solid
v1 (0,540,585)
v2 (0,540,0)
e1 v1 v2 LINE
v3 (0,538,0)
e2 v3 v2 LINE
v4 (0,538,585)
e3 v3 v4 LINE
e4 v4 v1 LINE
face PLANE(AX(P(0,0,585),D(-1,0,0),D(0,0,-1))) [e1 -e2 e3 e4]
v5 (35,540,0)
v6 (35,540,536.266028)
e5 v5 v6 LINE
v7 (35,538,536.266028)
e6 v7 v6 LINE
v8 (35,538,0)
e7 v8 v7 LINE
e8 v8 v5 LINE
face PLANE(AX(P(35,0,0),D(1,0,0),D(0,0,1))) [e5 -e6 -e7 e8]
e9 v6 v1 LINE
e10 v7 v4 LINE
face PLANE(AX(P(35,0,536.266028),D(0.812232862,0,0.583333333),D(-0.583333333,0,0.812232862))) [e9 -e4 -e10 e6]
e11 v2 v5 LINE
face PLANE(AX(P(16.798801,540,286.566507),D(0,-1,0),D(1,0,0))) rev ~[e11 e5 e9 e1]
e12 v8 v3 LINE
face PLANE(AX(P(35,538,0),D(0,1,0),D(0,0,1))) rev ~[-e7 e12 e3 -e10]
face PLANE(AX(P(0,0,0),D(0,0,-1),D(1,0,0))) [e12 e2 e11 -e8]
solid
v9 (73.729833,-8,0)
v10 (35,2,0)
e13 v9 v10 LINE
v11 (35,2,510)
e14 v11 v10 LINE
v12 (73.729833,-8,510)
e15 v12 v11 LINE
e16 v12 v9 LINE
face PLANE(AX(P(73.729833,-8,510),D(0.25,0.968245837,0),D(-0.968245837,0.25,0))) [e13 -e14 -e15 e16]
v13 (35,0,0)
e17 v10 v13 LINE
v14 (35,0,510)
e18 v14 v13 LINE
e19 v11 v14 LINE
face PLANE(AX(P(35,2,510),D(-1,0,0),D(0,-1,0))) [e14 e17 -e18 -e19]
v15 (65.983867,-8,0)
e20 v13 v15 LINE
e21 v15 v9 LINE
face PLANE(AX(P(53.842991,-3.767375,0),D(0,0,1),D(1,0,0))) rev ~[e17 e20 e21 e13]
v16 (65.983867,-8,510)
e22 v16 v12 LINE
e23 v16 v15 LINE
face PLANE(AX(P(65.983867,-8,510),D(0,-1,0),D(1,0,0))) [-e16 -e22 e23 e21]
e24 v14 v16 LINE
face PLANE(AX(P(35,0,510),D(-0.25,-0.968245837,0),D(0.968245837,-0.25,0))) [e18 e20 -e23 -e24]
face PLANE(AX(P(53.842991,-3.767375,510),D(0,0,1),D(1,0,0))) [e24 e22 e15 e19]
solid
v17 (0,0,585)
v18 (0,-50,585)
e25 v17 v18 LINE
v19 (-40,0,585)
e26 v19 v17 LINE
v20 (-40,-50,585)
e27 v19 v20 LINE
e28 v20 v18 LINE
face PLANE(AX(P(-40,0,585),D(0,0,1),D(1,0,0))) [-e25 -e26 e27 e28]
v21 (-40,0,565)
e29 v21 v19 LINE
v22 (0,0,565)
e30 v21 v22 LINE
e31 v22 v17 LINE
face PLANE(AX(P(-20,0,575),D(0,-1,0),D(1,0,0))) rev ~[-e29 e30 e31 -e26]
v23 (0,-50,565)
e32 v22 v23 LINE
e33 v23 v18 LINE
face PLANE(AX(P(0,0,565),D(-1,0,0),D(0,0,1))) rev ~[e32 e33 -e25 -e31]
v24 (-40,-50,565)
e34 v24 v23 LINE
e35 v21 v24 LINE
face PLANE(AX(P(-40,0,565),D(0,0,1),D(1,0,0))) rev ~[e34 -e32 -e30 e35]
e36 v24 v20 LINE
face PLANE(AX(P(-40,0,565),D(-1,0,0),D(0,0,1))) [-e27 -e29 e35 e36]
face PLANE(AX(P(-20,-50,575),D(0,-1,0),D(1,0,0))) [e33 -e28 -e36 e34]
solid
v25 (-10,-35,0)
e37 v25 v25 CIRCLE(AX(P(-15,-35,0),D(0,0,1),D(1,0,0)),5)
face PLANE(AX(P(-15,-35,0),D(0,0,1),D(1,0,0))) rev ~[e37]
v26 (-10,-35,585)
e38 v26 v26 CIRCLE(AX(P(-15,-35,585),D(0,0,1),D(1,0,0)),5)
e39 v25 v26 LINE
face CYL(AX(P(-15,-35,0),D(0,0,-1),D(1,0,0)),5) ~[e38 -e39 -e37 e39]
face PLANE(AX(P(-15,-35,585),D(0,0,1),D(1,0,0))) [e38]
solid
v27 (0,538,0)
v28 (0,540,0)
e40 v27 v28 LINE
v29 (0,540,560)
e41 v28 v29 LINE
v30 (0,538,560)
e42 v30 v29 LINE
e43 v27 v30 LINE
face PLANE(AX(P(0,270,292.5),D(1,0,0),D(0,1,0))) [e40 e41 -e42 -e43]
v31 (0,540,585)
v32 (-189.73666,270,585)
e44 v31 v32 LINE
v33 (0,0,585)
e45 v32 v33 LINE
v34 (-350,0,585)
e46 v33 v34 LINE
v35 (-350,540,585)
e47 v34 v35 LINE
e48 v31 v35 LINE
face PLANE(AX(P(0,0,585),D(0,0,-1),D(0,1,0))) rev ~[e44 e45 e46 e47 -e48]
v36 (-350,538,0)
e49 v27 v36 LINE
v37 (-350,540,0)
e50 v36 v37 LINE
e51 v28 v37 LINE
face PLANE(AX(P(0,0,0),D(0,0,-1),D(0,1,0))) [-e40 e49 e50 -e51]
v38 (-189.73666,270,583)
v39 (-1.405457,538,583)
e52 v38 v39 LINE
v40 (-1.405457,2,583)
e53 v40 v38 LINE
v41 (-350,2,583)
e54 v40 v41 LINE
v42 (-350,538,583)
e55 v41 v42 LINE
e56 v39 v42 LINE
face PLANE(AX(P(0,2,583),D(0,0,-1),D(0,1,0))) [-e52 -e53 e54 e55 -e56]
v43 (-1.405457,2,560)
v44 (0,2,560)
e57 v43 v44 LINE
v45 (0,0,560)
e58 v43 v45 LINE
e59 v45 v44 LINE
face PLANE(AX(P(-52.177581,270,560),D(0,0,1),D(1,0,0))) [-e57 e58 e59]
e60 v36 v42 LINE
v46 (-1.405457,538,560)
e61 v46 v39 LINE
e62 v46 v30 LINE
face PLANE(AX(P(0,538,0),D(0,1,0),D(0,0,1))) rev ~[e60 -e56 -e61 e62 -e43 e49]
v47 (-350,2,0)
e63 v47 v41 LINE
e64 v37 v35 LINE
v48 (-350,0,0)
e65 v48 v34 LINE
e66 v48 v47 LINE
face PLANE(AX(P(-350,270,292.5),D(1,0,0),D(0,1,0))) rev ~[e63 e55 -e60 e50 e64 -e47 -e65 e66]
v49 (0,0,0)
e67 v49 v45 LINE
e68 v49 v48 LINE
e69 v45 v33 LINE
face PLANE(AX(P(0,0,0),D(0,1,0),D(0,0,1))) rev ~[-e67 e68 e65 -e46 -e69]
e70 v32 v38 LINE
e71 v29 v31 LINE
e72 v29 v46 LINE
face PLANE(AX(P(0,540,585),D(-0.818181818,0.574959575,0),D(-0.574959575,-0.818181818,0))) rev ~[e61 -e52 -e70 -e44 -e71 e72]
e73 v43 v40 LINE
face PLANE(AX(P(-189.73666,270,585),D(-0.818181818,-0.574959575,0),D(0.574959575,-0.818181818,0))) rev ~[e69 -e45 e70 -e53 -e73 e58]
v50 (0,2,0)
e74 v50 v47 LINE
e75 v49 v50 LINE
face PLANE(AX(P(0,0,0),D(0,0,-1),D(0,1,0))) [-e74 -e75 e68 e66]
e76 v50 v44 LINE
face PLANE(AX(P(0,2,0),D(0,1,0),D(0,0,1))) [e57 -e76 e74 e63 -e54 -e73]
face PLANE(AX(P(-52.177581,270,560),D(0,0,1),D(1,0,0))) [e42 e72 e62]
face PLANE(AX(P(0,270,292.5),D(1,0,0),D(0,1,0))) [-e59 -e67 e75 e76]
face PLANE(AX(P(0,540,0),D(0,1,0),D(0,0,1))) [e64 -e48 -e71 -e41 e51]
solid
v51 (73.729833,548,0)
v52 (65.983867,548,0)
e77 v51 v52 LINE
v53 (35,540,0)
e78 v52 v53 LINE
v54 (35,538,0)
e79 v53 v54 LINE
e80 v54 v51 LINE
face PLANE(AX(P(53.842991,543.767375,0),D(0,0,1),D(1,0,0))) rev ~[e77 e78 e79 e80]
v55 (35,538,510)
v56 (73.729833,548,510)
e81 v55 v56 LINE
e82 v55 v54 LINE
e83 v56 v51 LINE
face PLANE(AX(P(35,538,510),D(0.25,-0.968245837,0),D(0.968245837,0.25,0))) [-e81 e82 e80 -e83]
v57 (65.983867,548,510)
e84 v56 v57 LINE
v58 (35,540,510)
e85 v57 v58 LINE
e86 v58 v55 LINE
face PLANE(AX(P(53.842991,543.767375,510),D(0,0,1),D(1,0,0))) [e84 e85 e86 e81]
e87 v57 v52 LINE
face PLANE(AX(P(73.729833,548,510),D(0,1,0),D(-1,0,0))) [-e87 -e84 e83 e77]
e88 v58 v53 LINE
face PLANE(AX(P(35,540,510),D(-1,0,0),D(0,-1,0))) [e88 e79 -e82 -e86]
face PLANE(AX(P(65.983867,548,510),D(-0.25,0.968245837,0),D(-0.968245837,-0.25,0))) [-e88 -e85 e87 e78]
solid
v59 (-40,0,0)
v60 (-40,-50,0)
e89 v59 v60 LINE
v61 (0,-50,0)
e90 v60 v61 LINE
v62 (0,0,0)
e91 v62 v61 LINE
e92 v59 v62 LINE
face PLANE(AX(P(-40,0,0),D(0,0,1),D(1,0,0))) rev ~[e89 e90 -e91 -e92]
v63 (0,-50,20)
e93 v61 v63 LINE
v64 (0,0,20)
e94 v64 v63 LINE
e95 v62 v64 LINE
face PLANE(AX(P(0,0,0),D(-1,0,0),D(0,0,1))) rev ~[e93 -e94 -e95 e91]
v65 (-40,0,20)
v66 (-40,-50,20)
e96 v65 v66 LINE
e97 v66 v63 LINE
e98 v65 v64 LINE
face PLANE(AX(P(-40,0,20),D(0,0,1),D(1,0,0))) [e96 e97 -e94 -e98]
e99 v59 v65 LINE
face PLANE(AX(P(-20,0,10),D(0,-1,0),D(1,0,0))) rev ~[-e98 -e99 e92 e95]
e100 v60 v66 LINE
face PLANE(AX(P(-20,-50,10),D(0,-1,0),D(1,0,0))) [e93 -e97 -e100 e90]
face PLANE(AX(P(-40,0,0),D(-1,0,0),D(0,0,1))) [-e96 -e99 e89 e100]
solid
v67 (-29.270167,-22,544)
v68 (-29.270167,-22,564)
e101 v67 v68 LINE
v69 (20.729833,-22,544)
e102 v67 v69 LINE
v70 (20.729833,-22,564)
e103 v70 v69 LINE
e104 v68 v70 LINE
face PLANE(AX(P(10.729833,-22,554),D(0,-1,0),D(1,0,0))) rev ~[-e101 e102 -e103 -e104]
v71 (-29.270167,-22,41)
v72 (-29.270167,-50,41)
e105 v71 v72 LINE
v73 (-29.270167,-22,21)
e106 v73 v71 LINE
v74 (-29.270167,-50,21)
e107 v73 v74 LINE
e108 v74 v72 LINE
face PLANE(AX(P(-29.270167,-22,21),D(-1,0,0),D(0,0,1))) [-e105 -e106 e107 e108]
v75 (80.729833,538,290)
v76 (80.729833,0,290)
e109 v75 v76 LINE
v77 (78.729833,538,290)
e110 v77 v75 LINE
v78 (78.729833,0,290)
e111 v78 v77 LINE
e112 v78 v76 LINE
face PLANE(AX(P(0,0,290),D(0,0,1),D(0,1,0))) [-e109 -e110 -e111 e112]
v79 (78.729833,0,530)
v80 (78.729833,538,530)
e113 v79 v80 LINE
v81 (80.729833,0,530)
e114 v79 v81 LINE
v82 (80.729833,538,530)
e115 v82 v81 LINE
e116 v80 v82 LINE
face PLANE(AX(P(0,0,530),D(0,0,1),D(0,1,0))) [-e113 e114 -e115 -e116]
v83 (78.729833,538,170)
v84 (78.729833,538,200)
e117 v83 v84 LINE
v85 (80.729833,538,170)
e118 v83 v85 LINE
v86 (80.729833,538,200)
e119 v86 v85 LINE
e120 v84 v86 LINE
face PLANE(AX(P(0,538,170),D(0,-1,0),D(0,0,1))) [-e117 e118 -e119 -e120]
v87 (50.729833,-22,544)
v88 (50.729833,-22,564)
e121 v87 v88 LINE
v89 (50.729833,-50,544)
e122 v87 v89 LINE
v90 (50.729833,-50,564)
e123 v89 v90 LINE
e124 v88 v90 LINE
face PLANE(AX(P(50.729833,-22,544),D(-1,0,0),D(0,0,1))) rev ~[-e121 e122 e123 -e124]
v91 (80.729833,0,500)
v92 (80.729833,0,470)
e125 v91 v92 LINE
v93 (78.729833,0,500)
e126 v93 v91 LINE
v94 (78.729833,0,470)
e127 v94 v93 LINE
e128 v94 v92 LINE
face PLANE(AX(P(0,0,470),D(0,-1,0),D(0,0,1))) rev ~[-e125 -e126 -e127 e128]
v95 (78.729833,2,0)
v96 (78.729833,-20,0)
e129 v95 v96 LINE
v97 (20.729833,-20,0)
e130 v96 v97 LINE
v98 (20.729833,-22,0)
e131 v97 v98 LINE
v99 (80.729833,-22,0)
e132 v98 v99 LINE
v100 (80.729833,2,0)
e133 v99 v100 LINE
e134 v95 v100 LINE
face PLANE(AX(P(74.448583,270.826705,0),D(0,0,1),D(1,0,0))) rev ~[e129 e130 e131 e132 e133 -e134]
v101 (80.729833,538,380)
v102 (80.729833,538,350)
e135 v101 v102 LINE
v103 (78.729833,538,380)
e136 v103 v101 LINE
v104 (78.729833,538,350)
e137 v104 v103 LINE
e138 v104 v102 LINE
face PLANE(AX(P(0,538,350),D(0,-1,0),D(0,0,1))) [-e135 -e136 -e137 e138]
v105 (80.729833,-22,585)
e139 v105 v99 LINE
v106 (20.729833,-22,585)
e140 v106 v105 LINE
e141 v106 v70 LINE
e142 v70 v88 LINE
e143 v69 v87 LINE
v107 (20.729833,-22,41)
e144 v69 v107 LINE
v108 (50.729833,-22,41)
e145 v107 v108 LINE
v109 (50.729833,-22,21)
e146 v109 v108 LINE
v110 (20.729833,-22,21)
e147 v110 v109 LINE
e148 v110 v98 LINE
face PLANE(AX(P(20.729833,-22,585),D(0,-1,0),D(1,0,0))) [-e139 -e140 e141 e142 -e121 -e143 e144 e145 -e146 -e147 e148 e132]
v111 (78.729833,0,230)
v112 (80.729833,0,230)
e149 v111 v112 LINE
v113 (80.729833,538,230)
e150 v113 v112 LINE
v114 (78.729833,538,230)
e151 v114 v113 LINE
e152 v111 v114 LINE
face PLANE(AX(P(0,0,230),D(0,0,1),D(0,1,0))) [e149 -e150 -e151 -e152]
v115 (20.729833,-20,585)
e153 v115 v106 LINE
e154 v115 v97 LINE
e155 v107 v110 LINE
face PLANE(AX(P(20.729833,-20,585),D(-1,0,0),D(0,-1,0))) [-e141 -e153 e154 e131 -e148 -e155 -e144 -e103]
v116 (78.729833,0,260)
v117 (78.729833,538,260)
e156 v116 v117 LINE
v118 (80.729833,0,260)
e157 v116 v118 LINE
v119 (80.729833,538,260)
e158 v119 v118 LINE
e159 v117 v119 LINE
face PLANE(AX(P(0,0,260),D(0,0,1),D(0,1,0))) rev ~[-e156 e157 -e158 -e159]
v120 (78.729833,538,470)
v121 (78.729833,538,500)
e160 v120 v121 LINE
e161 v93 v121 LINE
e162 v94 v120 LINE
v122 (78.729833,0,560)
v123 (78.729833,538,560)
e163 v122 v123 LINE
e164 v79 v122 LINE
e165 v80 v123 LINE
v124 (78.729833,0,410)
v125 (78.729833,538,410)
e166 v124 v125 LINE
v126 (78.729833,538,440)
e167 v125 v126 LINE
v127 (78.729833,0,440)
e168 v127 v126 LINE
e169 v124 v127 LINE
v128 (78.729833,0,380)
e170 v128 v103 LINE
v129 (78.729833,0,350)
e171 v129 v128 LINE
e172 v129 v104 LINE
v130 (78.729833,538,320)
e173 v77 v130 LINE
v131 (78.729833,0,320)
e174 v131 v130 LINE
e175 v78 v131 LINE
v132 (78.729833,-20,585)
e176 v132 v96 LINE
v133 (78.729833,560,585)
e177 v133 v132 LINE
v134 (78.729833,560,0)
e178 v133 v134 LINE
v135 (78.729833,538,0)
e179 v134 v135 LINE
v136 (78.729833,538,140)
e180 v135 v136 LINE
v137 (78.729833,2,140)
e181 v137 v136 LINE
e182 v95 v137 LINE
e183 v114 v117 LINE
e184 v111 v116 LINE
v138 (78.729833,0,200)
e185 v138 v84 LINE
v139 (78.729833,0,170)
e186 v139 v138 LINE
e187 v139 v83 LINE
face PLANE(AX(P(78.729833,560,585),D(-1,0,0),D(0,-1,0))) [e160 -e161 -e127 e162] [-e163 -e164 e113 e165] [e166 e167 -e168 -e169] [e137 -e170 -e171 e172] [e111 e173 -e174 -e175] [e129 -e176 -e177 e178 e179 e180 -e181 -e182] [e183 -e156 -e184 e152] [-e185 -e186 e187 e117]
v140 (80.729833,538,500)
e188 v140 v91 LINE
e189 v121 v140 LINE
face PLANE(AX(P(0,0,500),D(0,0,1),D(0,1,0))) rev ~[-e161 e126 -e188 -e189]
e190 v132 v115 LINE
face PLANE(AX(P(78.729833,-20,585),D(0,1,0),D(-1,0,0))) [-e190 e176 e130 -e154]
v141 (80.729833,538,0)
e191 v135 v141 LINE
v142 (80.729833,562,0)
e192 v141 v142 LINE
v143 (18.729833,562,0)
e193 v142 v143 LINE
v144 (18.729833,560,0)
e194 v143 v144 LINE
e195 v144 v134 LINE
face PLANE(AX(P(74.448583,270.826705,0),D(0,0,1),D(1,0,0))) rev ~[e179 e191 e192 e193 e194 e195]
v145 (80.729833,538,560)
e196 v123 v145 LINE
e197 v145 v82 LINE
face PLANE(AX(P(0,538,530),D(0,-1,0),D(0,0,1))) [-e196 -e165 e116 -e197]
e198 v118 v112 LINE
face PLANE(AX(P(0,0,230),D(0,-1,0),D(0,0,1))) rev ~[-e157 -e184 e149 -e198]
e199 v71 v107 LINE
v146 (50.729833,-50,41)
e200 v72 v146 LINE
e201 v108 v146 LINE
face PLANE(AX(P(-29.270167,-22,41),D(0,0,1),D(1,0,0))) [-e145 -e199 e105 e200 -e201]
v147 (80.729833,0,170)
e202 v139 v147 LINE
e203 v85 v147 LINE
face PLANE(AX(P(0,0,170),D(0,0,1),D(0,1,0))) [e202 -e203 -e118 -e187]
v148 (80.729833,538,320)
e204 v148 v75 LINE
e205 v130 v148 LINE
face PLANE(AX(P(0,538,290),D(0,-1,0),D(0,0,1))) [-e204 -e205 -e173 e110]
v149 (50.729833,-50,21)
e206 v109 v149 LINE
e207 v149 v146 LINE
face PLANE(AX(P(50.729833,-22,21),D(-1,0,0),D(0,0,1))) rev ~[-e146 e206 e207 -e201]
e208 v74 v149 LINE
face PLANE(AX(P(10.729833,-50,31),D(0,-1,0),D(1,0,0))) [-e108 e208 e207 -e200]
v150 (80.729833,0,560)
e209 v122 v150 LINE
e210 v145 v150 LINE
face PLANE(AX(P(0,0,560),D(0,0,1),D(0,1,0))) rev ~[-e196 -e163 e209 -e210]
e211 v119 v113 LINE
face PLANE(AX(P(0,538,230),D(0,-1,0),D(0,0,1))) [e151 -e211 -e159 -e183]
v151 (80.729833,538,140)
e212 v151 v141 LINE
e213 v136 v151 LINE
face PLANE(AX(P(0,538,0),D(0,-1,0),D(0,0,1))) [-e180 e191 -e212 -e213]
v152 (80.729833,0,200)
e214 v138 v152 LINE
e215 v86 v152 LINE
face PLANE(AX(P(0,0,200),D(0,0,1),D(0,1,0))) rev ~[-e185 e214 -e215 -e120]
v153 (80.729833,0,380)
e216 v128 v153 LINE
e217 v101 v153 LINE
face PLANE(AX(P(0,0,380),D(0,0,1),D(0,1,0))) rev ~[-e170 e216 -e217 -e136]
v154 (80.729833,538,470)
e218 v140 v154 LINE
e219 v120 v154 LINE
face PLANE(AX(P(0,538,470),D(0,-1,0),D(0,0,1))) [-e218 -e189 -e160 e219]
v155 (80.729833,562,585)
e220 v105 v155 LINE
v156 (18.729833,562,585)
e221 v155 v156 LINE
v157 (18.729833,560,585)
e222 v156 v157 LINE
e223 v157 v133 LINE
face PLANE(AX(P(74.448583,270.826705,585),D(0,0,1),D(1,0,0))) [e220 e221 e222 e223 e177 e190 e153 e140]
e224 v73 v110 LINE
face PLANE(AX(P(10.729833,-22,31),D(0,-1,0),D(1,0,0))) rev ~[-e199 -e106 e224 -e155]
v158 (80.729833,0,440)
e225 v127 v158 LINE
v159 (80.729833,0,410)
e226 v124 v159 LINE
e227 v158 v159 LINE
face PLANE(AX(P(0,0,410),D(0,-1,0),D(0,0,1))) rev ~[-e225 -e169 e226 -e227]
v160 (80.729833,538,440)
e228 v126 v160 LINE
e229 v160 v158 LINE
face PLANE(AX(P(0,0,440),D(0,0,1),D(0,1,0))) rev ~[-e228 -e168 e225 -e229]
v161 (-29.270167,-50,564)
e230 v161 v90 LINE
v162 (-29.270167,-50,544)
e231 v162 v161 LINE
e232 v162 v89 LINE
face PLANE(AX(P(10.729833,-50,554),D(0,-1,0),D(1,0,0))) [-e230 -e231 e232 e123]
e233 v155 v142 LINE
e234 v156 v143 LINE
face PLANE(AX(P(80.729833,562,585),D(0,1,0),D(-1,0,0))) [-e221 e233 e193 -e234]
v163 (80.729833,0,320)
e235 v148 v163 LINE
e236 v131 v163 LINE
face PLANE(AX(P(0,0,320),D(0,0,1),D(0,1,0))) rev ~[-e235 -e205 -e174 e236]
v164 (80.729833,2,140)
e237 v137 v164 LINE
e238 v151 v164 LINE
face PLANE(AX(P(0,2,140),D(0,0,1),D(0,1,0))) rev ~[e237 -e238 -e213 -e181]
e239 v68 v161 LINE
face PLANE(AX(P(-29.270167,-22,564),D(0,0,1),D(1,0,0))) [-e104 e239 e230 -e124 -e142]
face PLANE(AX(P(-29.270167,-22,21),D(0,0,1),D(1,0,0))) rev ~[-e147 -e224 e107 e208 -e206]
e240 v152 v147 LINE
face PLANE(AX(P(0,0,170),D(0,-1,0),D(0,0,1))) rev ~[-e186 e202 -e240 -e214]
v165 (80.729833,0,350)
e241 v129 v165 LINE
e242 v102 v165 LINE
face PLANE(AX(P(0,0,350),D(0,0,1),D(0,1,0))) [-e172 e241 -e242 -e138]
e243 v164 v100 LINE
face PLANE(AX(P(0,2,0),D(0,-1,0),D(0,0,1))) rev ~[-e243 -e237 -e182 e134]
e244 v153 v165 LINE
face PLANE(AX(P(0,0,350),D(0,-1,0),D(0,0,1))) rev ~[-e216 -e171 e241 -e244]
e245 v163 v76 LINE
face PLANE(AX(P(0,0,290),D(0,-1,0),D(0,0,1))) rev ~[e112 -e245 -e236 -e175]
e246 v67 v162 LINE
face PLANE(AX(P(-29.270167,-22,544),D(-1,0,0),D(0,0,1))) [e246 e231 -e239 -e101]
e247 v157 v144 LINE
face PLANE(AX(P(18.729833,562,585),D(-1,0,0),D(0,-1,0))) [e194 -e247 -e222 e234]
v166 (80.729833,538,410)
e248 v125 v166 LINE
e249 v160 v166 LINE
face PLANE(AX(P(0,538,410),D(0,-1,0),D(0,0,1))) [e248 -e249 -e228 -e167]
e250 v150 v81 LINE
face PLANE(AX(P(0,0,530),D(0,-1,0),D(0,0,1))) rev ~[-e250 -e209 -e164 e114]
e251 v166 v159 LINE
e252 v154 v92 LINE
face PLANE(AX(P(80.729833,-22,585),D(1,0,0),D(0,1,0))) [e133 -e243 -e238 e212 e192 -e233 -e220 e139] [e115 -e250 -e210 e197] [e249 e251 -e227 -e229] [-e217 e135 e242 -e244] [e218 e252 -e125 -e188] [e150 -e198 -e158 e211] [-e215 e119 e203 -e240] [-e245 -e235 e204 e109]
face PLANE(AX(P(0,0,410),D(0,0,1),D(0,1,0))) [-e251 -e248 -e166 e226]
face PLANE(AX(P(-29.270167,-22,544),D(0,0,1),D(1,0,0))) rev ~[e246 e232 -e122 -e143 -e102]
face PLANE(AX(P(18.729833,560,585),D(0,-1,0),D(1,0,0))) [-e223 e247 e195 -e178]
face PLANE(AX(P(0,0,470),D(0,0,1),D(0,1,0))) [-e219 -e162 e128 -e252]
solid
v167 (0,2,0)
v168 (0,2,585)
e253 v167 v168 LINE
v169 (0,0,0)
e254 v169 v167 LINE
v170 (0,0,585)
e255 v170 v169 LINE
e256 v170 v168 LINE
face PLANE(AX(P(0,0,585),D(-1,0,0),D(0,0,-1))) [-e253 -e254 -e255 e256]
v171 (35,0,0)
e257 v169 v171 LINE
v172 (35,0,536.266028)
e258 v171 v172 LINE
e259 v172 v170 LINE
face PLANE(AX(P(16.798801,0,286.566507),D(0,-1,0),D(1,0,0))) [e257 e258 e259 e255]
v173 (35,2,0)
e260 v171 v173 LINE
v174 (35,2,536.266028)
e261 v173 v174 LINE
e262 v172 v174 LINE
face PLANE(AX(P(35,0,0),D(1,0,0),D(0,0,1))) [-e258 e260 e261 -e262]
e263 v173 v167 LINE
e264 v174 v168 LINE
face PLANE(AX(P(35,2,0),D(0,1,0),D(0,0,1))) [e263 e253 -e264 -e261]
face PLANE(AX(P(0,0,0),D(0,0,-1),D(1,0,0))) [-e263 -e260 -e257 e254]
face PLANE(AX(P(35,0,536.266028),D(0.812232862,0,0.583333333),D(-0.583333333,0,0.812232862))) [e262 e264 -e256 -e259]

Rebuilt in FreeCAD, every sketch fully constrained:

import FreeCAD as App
import Part
import Sketcher

doc = App.newDocument("Part")
body = doc.addObject("PartDesign::Body", "Body")

# Sketch on YZ plane
sketch1 = body.newObject("Sketcher::SketchObject", "Sketch")
sketch1.AttachmentSupport = (doc.getObject("YZ_Plane"), [""])
sketch1.MapMode = "FlatFace"
sketch1.addGeometry(Part.LineSegment(App.Vector(0, 585, 0), App.Vector(0, 0, 0)), False)
sketch1.addGeometry(Part.LineSegment(App.Vector(0, 0, 0), App.Vector(540, 0, 0)), False)
sketch1.addGeometry(Part.LineSegment(App.Vector(540, 0, 0), App.Vector(540, 585, 0)), False)
sketch1.addGeometry(Part.LineSegment(App.Vector(540, 585, 0), App.Vector(0, 585, 0)), False)
sketch1.addConstraint(Sketcher.Constraint("Coincident", 0, 2, 1, 1))
sketch1.addConstraint(Sketcher.Constraint("Coincident", 1, 2, 2, 1))
sketch1.addConstraint(Sketcher.Constraint("Coincident", 2, 2, 3, 1))
sketch1.addConstraint(Sketcher.Constraint("Coincident", 3, 2, 0, 1))
sketch1.addConstraint(Sketcher.Constraint("Vertical", 0))
sketch1.addConstraint(Sketcher.Constraint("Horizontal", 1))
sketch1.addConstraint(Sketcher.Constraint("Vertical", 2))
sketch1.addConstraint(Sketcher.Constraint("Horizontal", 3))
sketch1.addConstraint(Sketcher.Constraint("Coincident", 0, 2, -1, 1))
sketch1.addConstraint(Sketcher.Constraint("DistanceX", 1, 1, 1, 2, 540.0))
sketch1.addConstraint(Sketcher.Constraint("DistanceY", 0, 2, 0, 1, 585.0))
pad1 = body.newObject("PartDesign::Pad", "Pad")
pad1.Profile = sketch1
pad1.Length = 350
pad1.Reversed = True

# Sketch on YZ plane
sketch2 = body.newObject("Sketcher::SketchObject", "Sketch001")
sketch2.AttachmentSupport = (doc.getObject("YZ_Plane"), [""])
sketch2.MapMode = "FlatFace"
sketch2.addGeometry(Part.LineSegment(App.Vector(2, 583, 0), App.Vector(2, 0, 0)), False)
sketch2.addGeometry(Part.LineSegment(App.Vector(2, 0, 0), App.Vector(538, 0, 0)), False)
sketch2.addGeometry(Part.LineSegment(App.Vector(538, 0, 0), App.Vector(538, 583, 0)), False)
sketch2.addGeometry(Part.LineSegment(App.Vector(538, 583, 0), App.Vector(2, 583, 0)), False)
sketch2.addConstraint(Sketcher.Constraint("Coincident", 0, 2, 1, 1))
sketch2.addConstraint(Sketcher.Constraint("Coincident", 1, 2, 2, 1))
sketch2.addConstraint(Sketcher.Constraint("Coincident", 2, 2, 3, 1))
sketch2.addConstraint(Sketcher.Constraint("Coincident", 3, 2, 0, 1))
sketch2.addConstraint(Sketcher.Constraint("Vertical", 0))
sketch2.addConstraint(Sketcher.Constraint("Horizontal", 1))
sketch2.addConstraint(Sketcher.Constraint("Vertical", 2))
sketch2.addConstraint(Sketcher.Constraint("Horizontal", 3))
sketch2.addConstraint(Sketcher.Constraint("PointOnObject", 0, 2, -1))
sketch2.addConstraint(Sketcher.Constraint("DistanceX", 1, 1, 1, 2, 536.0))
sketch2.addConstraint(Sketcher.Constraint("DistanceY", 0, 2, 0, 1, 583.0))
sketch2.addConstraint(Sketcher.Constraint("DistanceX", -1, 1, 0, 2, 2.0))
pocket1 = body.newObject("PartDesign::Pocket", "Pocket")
pocket1.Profile = sketch2
pocket1.Length = 350

# Sketch on XY plane
sketch3 = body.newObject("Sketcher::SketchObject", "Sketch002")
sketch3.AttachmentSupport = (doc.getObject("XY_Plane"), [""])
sketch3.MapMode = "FlatFace"
sketch3.AttachmentOffset = App.Placement(App.Vector(0, 0, 585), App.Rotation())
sketch3.addGeometry(Part.LineSegment(App.Vector(-190, 270, 0), App.Vector(0, 0, 0)), False)
sketch3.addGeometry(Part.LineSegment(App.Vector(0, 0, 0), App.Vector(0, 540, 0)), False)
sketch3.addGeometry(Part.LineSegment(App.Vector(0, 540, 0), App.Vector(-190, 270, 0)), False)
sketch3.addConstraint(Sketcher.Constraint("Coincident", 0, 2, 1, 1))
sketch3.addConstraint(Sketcher.Constraint("Coincident", 1, 2, 2, 1))
sketch3.addConstraint(Sketcher.Constraint("Coincident", 2, 2, 0, 1))
sketch3.addConstraint(Sketcher.Constraint("Vertical", 1))
sketch3.addConstraint(Sketcher.Constraint("Coincident", 0, 2, -1, 1))
sketch3.addConstraint(Sketcher.Constraint("Equal", 0, 2))
sketch3.addConstraint(Sketcher.Constraint("DistanceY", 1, 1, 1, 2, 540.0))
sketch3.addConstraint(Sketcher.Constraint("Distance", 0, 330.0))
pocket2 = body.newObject("PartDesign::Pocket", "Pocket001")
pocket2.Profile = sketch3
pocket2.Length = 25
body2 = doc.addObject("PartDesign::Body", "Body001")
body2.AllowCompound = True

# Sketch on XZ plane
sketch4 = body2.newObject("Sketcher::SketchObject", "Sketch003")
sketch4.AttachmentSupport = (doc.getObject("XZ_Plane001"), [""])
sketch4.MapMode = "FlatFace"
sketch4.addGeometry(Part.LineSegment(App.Vector(0, 585, 0), App.Vector(0, 0, 0)), False)
sketch4.addGeometry(Part.LineSegment(App.Vector(0, 0, 0), App.Vector(35, 0, 0)), False)
sketch4.addGeometry(Part.LineSegment(App.Vector(35, 0, 0), App.Vector(35, 536, 0)), False)
sketch4.addGeometry(Part.LineSegment(App.Vector(35, 536, 0), App.Vector(0, 585, 0)), False)
sketch4.addConstraint(Sketcher.Constraint("Coincident", 0, 2, 1, 1))
sketch4.addConstraint(Sketcher.Constraint("Coincident", 1, 2, 2, 1))
sketch4.addConstraint(Sketcher.Constraint("Coincident", 2, 2, 3, 1))
sketch4.addConstraint(Sketcher.Constraint("Coincident", 3, 2, 0, 1))
sketch4.addConstraint(Sketcher.Constraint("Vertical", 0))
sketch4.addConstraint(Sketcher.Constraint("Horizontal", 1))
sketch4.addConstraint(Sketcher.Constraint("Vertical", 2))
sketch4.addConstraint(Sketcher.Constraint("Coincident", 0, 2, -1, 1))
sketch4.addConstraint(Sketcher.Constraint("DistanceX", 1, 1, 1, 2, 35.0))
sketch4.addConstraint(Sketcher.Constraint("DistanceY", 0, 2, 0, 1, 585.0))
sketch4.addConstraint(Sketcher.Constraint("Distance", 3, 60.0))
pad2 = body2.newObject("PartDesign::Pad", "Pad001")
pad2.Profile = sketch4
pad2.Length = 540
pad2.Reversed = True

# Sketch on YZ plane
sketch5 = body2.newObject("Sketcher::SketchObject", "Sketch004")
sketch5.AttachmentSupport = (doc.getObject("YZ_Plane001"), [""])
sketch5.MapMode = "FlatFace"
sketch5.AttachmentOffset = App.Placement(App.Vector(0, 0, 35), App.Rotation())
sketch5.addGeometry(Part.LineSegment(App.Vector(2, 585, 0), App.Vector(2, 0, 0)), False)
sketch5.addGeometry(Part.LineSegment(App.Vector(2, 0, 0), App.Vector(538, 0, 0)), False)
sketch5.addGeometry(Part.LineSegment(App.Vector(538, 0, 0), App.Vector(538, 585, 0)), False)
sketch5.addGeometry(Part.LineSegment(App.Vector(538, 585, 0), App.Vector(2, 585, 0)), False)
sketch5.addConstraint(Sketcher.Constraint("Coincident", 0, 2, 1, 1))
sketch5.addConstraint(Sketcher.Constraint("Coincident", 1, 2, 2, 1))
sketch5.addConstraint(Sketcher.Constraint("Coincident", 2, 2, 3, 1))
sketch5.addConstraint(Sketcher.Constraint("Coincident", 3, 2, 0, 1))
sketch5.addConstraint(Sketcher.Constraint("Vertical", 0))
sketch5.addConstraint(Sketcher.Constraint("Horizontal", 1))
sketch5.addConstraint(Sketcher.Constraint("Vertical", 2))
sketch5.addConstraint(Sketcher.Constraint("Horizontal", 3))
sketch5.addConstraint(Sketcher.Constraint("PointOnObject", 0, 2, -1))
sketch5.addConstraint(Sketcher.Constraint("DistanceX", 1, 1, 1, 2, 536.0))
sketch5.addConstraint(Sketcher.Constraint("DistanceY", 0, 2, 0, 1, 585.0))
sketch5.addConstraint(Sketcher.Constraint("DistanceX", -1, 1, 0, 2, 2.0))
pocket3 = body2.newObject("PartDesign::Pocket", "Pocket002")
pocket3.Profile = sketch5
pocket3.Length = 35
body3 = doc.addObject("PartDesign::Body", "Body002")

# Sketch on XY plane
sketch6 = body3.newObject("Sketcher::SketchObject", "Sketch005")
sketch6.AttachmentSupport = (doc.getObject("XY_Plane002"), [""])
sketch6.MapMode = "FlatFace"
sketch6.AttachmentOffset = App.Placement(App.Vector(0, 0, 510), App.Rotation())
sketch6.addGeometry(Part.LineSegment(App.Vector(35, 2, 0), App.Vector(35, 0, 0)), False)
sketch6.addGeometry(Part.LineSegment(App.Vector(35, 0, 0), App.Vector(66, -8, 0)), False)
sketch6.addGeometry(Part.LineSegment(App.Vector(66, -8, 0), App.Vector(73.7, -8, 0)), False)
sketch6.addGeometry(Part.LineSegment(App.Vector(73.7, -8, 0), App.Vector(35, 2, 0)), False)
sketch6.addConstraint(Sketcher.Constraint("Coincident", 0, 2, 1, 1))
sketch6.addConstraint(Sketcher.Constraint("Coincident", 1, 2, 2, 1))
sketch6.addConstraint(Sketcher.Constraint("Coincident", 2, 2, 3, 1))
sketch6.addConstraint(Sketcher.Constraint("Coincident", 3, 2, 0, 1))
sketch6.addConstraint(Sketcher.Constraint("Vertical", 0))
sketch6.addConstraint(Sketcher.Constraint("Horizontal", 2))
sketch6.addConstraint(Sketcher.Constraint("PointOnObject", 0, 2, -1))
sketch6.addConstraint(Sketcher.Constraint("Parallel", 1, 3))
sketch6.addConstraint(Sketcher.Constraint("DistanceY", 0, 2, 0, 1, 2.0))
sketch6.addConstraint(Sketcher.Constraint("Distance", 1, 32.0))
sketch6.addConstraint(Sketcher.Constraint("Distance", 3, 40.0))
sketch6.addConstraint(Sketcher.Constraint("DistanceX", -1, 1, 0, 2, 35.0))
pad3 = body3.newObject("PartDesign::Pad", "Pad002")
pad3.Profile = sketch6
pad3.Length = 510
pad3.Reversed = True
body4 = doc.addObject("PartDesign::Body", "Body003")

# Sketch on XY plane
sketch7 = body4.newObject("Sketcher::SketchObject", "Sketch006")
sketch7.AttachmentSupport = (doc.getObject("XY_Plane003"), [""])
sketch7.MapMode = "FlatFace"
sketch7.AttachmentOffset = App.Placement(App.Vector(0, 0, 510), App.Rotation())
sketch7.addGeometry(Part.LineSegment(App.Vector(66, 548, 0), App.Vector(35, 540, 0)), False)
sketch7.addGeometry(Part.LineSegment(App.Vector(35, 540, 0), App.Vector(35, 538, 0)), False)
sketch7.addGeometry(Part.LineSegment(App.Vector(35, 538, 0), App.Vector(73.7, 548, 0)), False)
sketch7.addGeometry(Part.LineSegment(App.Vector(73.7, 548, 0), App.Vector(66, 548, 0)), False)
sketch7.addConstraint(Sketcher.Constraint("Coincident", 0, 2, 1, 1))
sketch7.addConstraint(Sketcher.Constraint("Coincident", 1, 2, 2, 1))
sketch7.addConstraint(Sketcher.Constraint("Coincident", 2, 2, 3, 1))
sketch7.addConstraint(Sketcher.Constraint("Coincident", 3, 2, 0, 1))
sketch7.addConstraint(Sketcher.Constraint("Vertical", 1))
sketch7.addConstraint(Sketcher.Constraint("Horizontal", 3))
sketch7.addConstraint(Sketcher.Constraint("Parallel", 0, 2))
sketch7.addConstraint(Sketcher.Constraint("DistanceY", 1, 2, 1, 1, 2.0))
sketch7.addConstraint(Sketcher.Constraint("Distance", 0, 32.0))
sketch7.addConstraint(Sketcher.Constraint("Distance", 2, 40.0))
sketch7.addConstraint(Sketcher.Constraint("DistanceX", -1, 1, 0, 2, 35.0))
sketch7.addConstraint(Sketcher.Constraint("DistanceY", -1, 1, 0, 2, 540.0))
pad4 = body4.newObject("PartDesign::Pad", "Pad003")
pad4.Profile = sketch7
pad4.Length = 510
pad4.Reversed = True
body5 = doc.addObject("PartDesign::Body", "Body004")

# Sketch on XY plane
sketch8 = body5.newObject("Sketcher::SketchObject", "Sketch007")
sketch8.AttachmentSupport = (doc.getObject("XY_Plane004"), [""])
sketch8.MapMode = "FlatFace"
sketch8.AttachmentOffset = App.Placement(App.Vector(0, 0, 585), App.Rotation())
sketch8.addGeometry(Part.LineSegment(App.Vector(78.7, -20, 0), App.Vector(20.7, -20, 0)), False)
sketch8.addGeometry(Part.LineSegment(App.Vector(20.7, -20, 0), App.Vector(20.7, -22, 0)), False)
sketch8.addGeometry(Part.LineSegment(App.Vector(20.7, -22, 0), App.Vector(80.7, -22, 0)), False)
sketch8.addGeometry(Part.LineSegment(App.Vector(80.7, -22, 0), App.Vector(80.7, 562, 0)), False)
sketch8.addGeometry(Part.LineSegment(App.Vector(80.7, 562, 0), App.Vector(18.7, 562, 0)), False)
sketch8.addGeometry(Part.LineSegment(App.Vector(18.7, 562, 0), App.Vector(18.7, 560, 0)), False)
sketch8.addGeometry(Part.LineSegment(App.Vector(18.7, 560, 0), App.Vector(78.7, 560, 0)), False)
sketch8.addGeometry(Part.LineSegment(App.Vector(78.7, 560, 0), App.Vector(78.7, -20, 0)), False)
sketch8.addConstraint(Sketcher.Constraint("Coincident", 0, 2, 1, 1))
sketch8.addConstraint(Sketcher.Constraint("Coincident", 1, 2, 2, 1))
sketch8.addConstraint(Sketcher.Constraint("Coincident", 2, 2, 3, 1))
sketch8.addConstraint(Sketcher.Constraint("Coincident", 3, 2, 4, 1))
sketch8.addConstraint(Sketcher.Constraint("Coincident", 4, 2, 5, 1))
sketch8.addConstraint(Sketcher.Constraint("Coincident", 5, 2, 6, 1))
sketch8.addConstraint(Sketcher.Constraint("Coincident", 6, 2, 7, 1))
sketch8.addConstraint(Sketcher.Constraint("Coincident", 7, 2, 0, 1))
sketch8.addConstraint(Sketcher.Constraint("Horizontal", 0))
sketch8.addConstraint(Sketcher.Constraint("Vertical", 1))
sketch8.addConstraint(Sketcher.Constraint("Horizontal", 2))
sketch8.addConstraint(Sketcher.Constraint("Vertical", 3))
sketch8.addConstraint(Sketcher.Constraint("Horizontal", 4))
sketch8.addConstraint(Sketcher.Constraint("Vertical", 5))
sketch8.addConstraint(Sketcher.Constraint("Horizontal", 6))
sketch8.addConstraint(Sketcher.Constraint("Vertical", 7))
sketch8.addConstraint(Sketcher.Constraint("Equal", 2, 6))
sketch8.addConstraint(Sketcher.Constraint("Equal", 1, 5))
sketch8.addConstraint(Sketcher.Constraint("DistanceX", 0, 2, 0, 1, 58.0))
sketch8.addConstraint(Sketcher.Constraint("DistanceX", 2, 1, 2, 2, 60.0))
sketch8.addConstraint(Sketcher.Constraint("DistanceY", 1, 2, 1, 1, 2.0))
sketch8.addConstraint(Sketcher.Constraint("DistanceY", 3, 1, 3, 2, 584.0))
sketch8.addConstraint(Sketcher.Constraint("DistanceY", 0, 2, -1, 1, 20.0))
sketch8.addConstraint(Sketcher.Constraint("DistanceX", -1, 1, 0, 2, 20.729833))
pad5 = body5.newObject("PartDesign::Pad", "Pad004")
pad5.Profile = sketch8
pad5.Length = 585
pad5.Reversed = True

# Sketch on YZ plane
sketch9 = body5.newObject("Sketcher::SketchObject", "Sketch008")
sketch9.AttachmentSupport = (doc.getObject("YZ_Plane004"), [""])
sketch9.MapMode = "FlatFace"
sketch9.addGeometry(Part.LineSegment(App.Vector(2, 140, 0), App.Vector(2, 0, 0)), False)
sketch9.addGeometry(Part.LineSegment(App.Vector(2, 0, 0), App.Vector(538, 0, 0)), False)
sketch9.addGeometry(Part.LineSegment(App.Vector(538, 0, 0), App.Vector(538, 140, 0)), False)
sketch9.addGeometry(Part.LineSegment(App.Vector(538, 140, 0), App.Vector(2, 140, 0)), False)
sketch9.addGeometry(Part.LineSegment(App.Vector(0, 200, 0), App.Vector(0, 170, 0)), False)
sketch9.addGeometry(Part.LineSegment(App.Vector(0, 170, 0), App.Vector(538, 170, 0)), False)
sketch9.addGeometry(Part.LineSegment(App.Vector(538, 170, 0), App.Vector(538, 200, 0)), False)
sketch9.addGeometry(Part.LineSegment(App.Vector(538, 200, 0), App.Vector(0, 200, 0)), False)
sketch9.addGeometry(Part.LineSegment(App.Vector(0, 260, 0), App.Vector(0, 230, 0)), False)
sketch9.addGeometry(Part.LineSegment(App.Vector(0, 230, 0), App.Vector(538, 230, 0)), False)
sketch9.addGeometry(Part.LineSegment(App.Vector(538, 230, 0), App.Vector(538, 260, 0)), False)
sketch9.addGeometry(Part.LineSegment(App.Vector(538, 260, 0), App.Vector(0, 260, 0)), False)
sketch9.addGeometry(Part.LineSegment(App.Vector(0, 320, 0), App.Vector(0, 290, 0)), False)
sketch9.addGeometry(Part.LineSegment(App.Vector(0, 290, 0), App.Vector(538, 290, 0)), False)
sketch9.addGeometry(Part.LineSegment(App.Vector(538, 290, 0), App.Vector(538, 320, 0)), False)
sketch9.addGeometry(Part.LineSegment(App.Vector(538, 320, 0), App.Vector(0, 320, 0)), False)
sketch9.addGeometry(Part.LineSegment(App.Vector(0, 380, 0), App.Vector(0, 350, 0)), False)
sketch9.addGeometry(Part.LineSegment(App.Vector(0, 350, 0), App.Vector(538, 350, 0)), False)
sketch9.addGeometry(Part.LineSegment(App.Vector(538, 350, 0), App.Vector(538, 380, 0)), False)
sketch9.addGeometry(Part.LineSegment(App.Vector(538, 380, 0), App.Vector(0, 380, 0)), False)
sketch9.addGeometry(Part.LineSegment(App.Vector(0, 560, 0), App.Vector(0, 530, 0)), False)
sketch9.addGeometry(Part.LineSegment(App.Vector(0, 530, 0), App.Vector(538, 530, 0)), False)
sketch9.addGeometry(Part.LineSegment(App.Vector(538, 530, 0), App.Vector(538, 560, 0)), False)
sketch9.addGeometry(Part.LineSegment(App.Vector(538, 560, 0), App.Vector(0, 560, 0)), False)
sketch9.addGeometry(Part.LineSegment(App.Vector(0, 500, 0), App.Vector(0, 470, 0)), False)
sketch9.addGeometry(Part.LineSegment(App.Vector(0, 470, 0), App.Vector(538, 470, 0)), False)
sketch9.addGeometry(Part.LineSegment(App.Vector(538, 470, 0), App.Vector(538, 500, 0)), False)
sketch9.addGeometry(Part.LineSegment(App.Vector(538, 500, 0), App.Vector(0, 500, 0)), False)
sketch9.addGeometry(Part.LineSegment(App.Vector(0, 440, 0), App.Vector(0, 410, 0)), False)
sketch9.addGeometry(Part.LineSegment(App.Vector(0, 410, 0), App.Vector(538, 410, 0)), False)
sketch9.addGeometry(Part.LineSegment(App.Vector(538, 410, 0), App.Vector(538, 440, 0)), False)
sketch9.addGeometry(Part.LineSegment(App.Vector(538, 440, 0), App.Vector(0, 440, 0)), False)
sketch9.addConstraint(Sketcher.Constraint("Coincident", 0, 2, 1, 1))
sketch9.addConstraint(Sketcher.Constraint("Coincident", 1, 2, 2, 1))
sketch9.addConstraint(Sketcher.Constraint("Coincident", 2, 2, 3, 1))
sketch9.addConstraint(Sketcher.Constraint("Coincident", 3, 2, 0, 1))
sketch9.addConstraint(Sketcher.Constraint("Coincident", 4, 2, 5, 1))
sketch9.addConstraint(Sketcher.Constraint("Coincident", 5, 2, 6, 1))
sketch9.addConstraint(Sketcher.Constraint("Coincident", 6, 2, 7, 1))
sketch9.addConstraint(Sketcher.Constraint("Coincident", 7, 2, 4, 1))
sketch9.addConstraint(Sketcher.Constraint("Coincident", 8, 2, 9, 1))
sketch9.addConstraint(Sketcher.Constraint("Coincident", 9, 2, 10, 1))
sketch9.addConstraint(Sketcher.Constraint("Coincident", 10, 2, 11, 1))
sketch9.addConstraint(Sketcher.Constraint("Coincident", 11, 2, 8, 1))
sketch9.addConstraint(Sketcher.Constraint("Coincident", 12, 2, 13, 1))
sketch9.addConstraint(Sketcher.Constraint("Coincident", 13, 2, 14, 1))
sketch9.addConstraint(Sketcher.Constraint("Coincident", 14, 2, 15, 1))
sketch9.addConstraint(Sketcher.Constraint("Coincident", 15, 2, 12, 1))
sketch9.addConstraint(Sketcher.Constraint("Coincident", 16, 2, 17, 1))
sketch9.addConstraint(Sketcher.Constraint("Coincident", 17, 2, 18, 1))
sketch9.addConstraint(Sketcher.Constraint("Coincident", 18, 2, 19, 1))
sketch9.addConstraint(Sketcher.Constraint("Coincident", 19, 2, 16, 1))
sketch9.addConstraint(Sketcher.Constraint("Coincident", 20, 2, 21, 1))
sketch9.addConstraint(Sketcher.Constraint("Coincident", 21, 2, 22, 1))
sketch9.addConstraint(Sketcher.Constraint("Coincident", 22, 2, 23, 1))
sketch9.addConstraint(Sketcher.Constraint("Coincident", 23, 2, 20, 1))
sketch9.addConstraint(Sketcher.Constraint("Coincident", 24, 2, 25, 1))
sketch9.addConstraint(Sketcher.Constraint("Coincident", 25, 2, 26, 1))
sketch9.addConstraint(Sketcher.Constraint("Coincident", 26, 2, 27, 1))
sketch9.addConstraint(Sketcher.Constraint("Coincident", 27, 2, 24, 1))
sketch9.addConstraint(Sketcher.Constraint("Coincident", 28, 2, 29, 1))
sketch9.addConstraint(Sketcher.Constraint("Coincident", 29, 2, 30, 1))
sketch9.addConstraint(Sketcher.Constraint("Coincident", 30, 2, 31, 1))
sketch9.addConstraint(Sketcher.Constraint("Coincident", 31, 2, 28, 1))
sketch9.addConstraint(Sketcher.Constraint("Vertical", 0))
sketch9.addConstraint(Sketcher.Constraint("Horizontal", 1))
sketch9.addConstraint(Sketcher.Constraint("Vertical", 2))
sketch9.addConstraint(Sketcher.Constraint("Horizontal", 3))
sketch9.addConstraint(Sketcher.Constraint("Vertical", 4))
sketch9.addConstraint(Sketcher.Constraint("Horizontal", 5))
sketch9.addConstraint(Sketcher.Constraint("Vertical", 6))
sketch9.addConstraint(Sketcher.Constraint("Horizontal", 7))
sketch9.addConstraint(Sketcher.Constraint("Vertical", 8))
sketch9.addConstraint(Sketcher.Constraint("Horizontal", 9))
sketch9.addConstraint(Sketcher.Constraint("Vertical", 10))
sketch9.addConstraint(Sketcher.Constraint("Horizontal", 11))
sketch9.addConstraint(Sketcher.Constraint("Vertical", 12))
sketch9.addConstraint(Sketcher.Constraint("Horizontal", 13))
sketch9.addConstraint(Sketcher.Constraint("Vertical", 14))
sketch9.addConstraint(Sketcher.Constraint("Horizontal", 15))
sketch9.addConstraint(Sketcher.Constraint("Vertical", 16))
sketch9.addConstraint(Sketcher.Constraint("Horizontal", 17))
sketch9.addConstraint(Sketcher.Constraint("Vertical", 18))
sketch9.addConstraint(Sketcher.Constraint("Horizontal", 19))
sketch9.addConstraint(Sketcher.Constraint("Vertical", 20))
sketch9.addConstraint(Sketcher.Constraint("Horizontal", 21))
sketch9.addConstraint(Sketcher.Constraint("Vertical", 22))
sketch9.addConstraint(Sketcher.Constraint("Horizontal", 23))
sketch9.addConstraint(Sketcher.Constraint("Vertical", 24))
sketch9.addConstraint(Sketcher.Constraint("Horizontal", 25))
sketch9.addConstraint(Sketcher.Constraint("Vertical", 26))
sketch9.addConstraint(Sketcher.Constraint("Horizontal", 27))
sketch9.addConstraint(Sketcher.Constraint("Vertical", 28))
sketch9.addConstraint(Sketcher.Constraint("Horizontal", 29))
sketch9.addConstraint(Sketcher.Constraint("Vertical", 30))
sketch9.addConstraint(Sketcher.Constraint("Horizontal", 31))
sketch9.addConstraint(Sketcher.Constraint("PointOnObject", 0, 2, -1))
sketch9.addConstraint(Sketcher.Constraint("PointOnObject", 4, 2, -2))
sketch9.addConstraint(Sketcher.Constraint("PointOnObject", 8, 2, -2))
sketch9.addConstraint(Sketcher.Constraint("PointOnObject", 12, 2, -2))
sketch9.addConstraint(Sketcher.Constraint("PointOnObject", 16, 2, -2))
sketch9.addConstraint(Sketcher.Constraint("PointOnObject", 20, 2, -2))
sketch9.addConstraint(Sketcher.Constraint("PointOnObject", 24, 2, -2))
sketch9.addConstraint(Sketcher.Constraint("PointOnObject", 28, 2, -2))
sketch9.addConstraint(Sketcher.Constraint("Vertical", 2, 2, 5, 2))
sketch9.addConstraint(Sketcher.Constraint("Vertical", 6, 2, 9, 2))
sketch9.addConstraint(Sketcher.Constraint("Vertical", 10, 2, 13, 2))
sketch9.addConstraint(Sketcher.Constraint("Vertical", 14, 2, 17, 2))
sketch9.addConstraint(Sketcher.Constraint("Vertical", 18, 2, 21, 2))
sketch9.addConstraint(Sketcher.Constraint("Vertical", 22, 2, 25, 2))
sketch9.addConstraint(Sketcher.Constraint("Vertical", 26, 2, 29, 2))
sketch9.addConstraint(Sketcher.Constraint("Equal", 6, 8))
sketch9.addConstraint(Sketcher.Constraint("Equal", 10, 12))
sketch9.addConstraint(Sketcher.Constraint("Equal", 14, 16))
sketch9.addConstraint(Sketcher.Constraint("Equal", 18, 20))
sketch9.addConstraint(Sketcher.Constraint("Equal", 22, 24))
sketch9.addConstraint(Sketcher.Constraint("Equal", 26, 28))
sketch9.addConstraint(Sketcher.Constraint("DistanceX", 1, 1, 1, 2, 536.0))
sketch9.addConstraint(Sketcher.Constraint("DistanceX", 5, 1, 5, 2, 538.0))
sketch9.addConstraint(Sketcher.Constraint("DistanceY", 0, 2, 0, 1, 140.0))
sketch9.addConstraint(Sketcher.Constraint("DistanceY", 4, 2, 4, 1, 30.0))
sketch9.addConstraint(Sketcher.Constraint("DistanceY", -1, 1, 4, 2, 170.0))
sketch9.addConstraint(Sketcher.Constraint("DistanceY", -1, 1, 8, 2, 230.0))
sketch9.addConstraint(Sketcher.Constraint("DistanceY", -1, 1, 12, 2, 290.0))
sketch9.addConstraint(Sketcher.Constraint("DistanceY", -1, 1, 16, 2, 350.0))
sketch9.addConstraint(Sketcher.Constraint("DistanceY", -1, 1, 20, 2, 530.0))
sketch9.addConstraint(Sketcher.Constraint("DistanceY", -1, 1, 24, 2, 470.0))
sketch9.addConstraint(Sketcher.Constraint("DistanceY", -1, 1, 28, 2, 410.0))
pocket4 = body5.newObject("PartDesign::Pocket", "Pocket003")
pocket4.Profile = sketch9
pocket4.Length = 100
pocket4.Reversed = True

# Sketch on XZ plane
sketch10 = body5.newObject("Sketcher::SketchObject", "Sketch009")
sketch10.AttachmentSupport = (doc.getObject("XZ_Plane004"), [""])
sketch10.MapMode = "FlatFace"
sketch10.AttachmentOffset = App.Placement(App.Vector(0, 0, 22), App.Rotation())
sketch10.addGeometry(Part.LineSegment(App.Vector(-29, 564, 0), App.Vector(-29, 544, 0)), False)
sketch10.addGeometry(Part.LineSegment(App.Vector(-29, 544, 0), App.Vector(51, 544, 0)), False)
sketch10.addGeometry(Part.LineSegment(App.Vector(51, 544, 0), App.Vector(51, 564, 0)), False)
sketch10.addGeometry(Part.LineSegment(App.Vector(51, 564, 0), App.Vector(-29, 564, 0)), False)
sketch10.addGeometry(Part.LineSegment(App.Vector(-29, 41, 0), App.Vector(-29, 21, 0)), False)
sketch10.addGeometry(Part.LineSegment(App.Vector(-29, 21, 0), App.Vector(51, 21, 0)), False)
sketch10.addGeometry(Part.LineSegment(App.Vector(51, 21, 0), App.Vector(51, 41, 0)), False)
sketch10.addGeometry(Part.LineSegment(App.Vector(51, 41, 0), App.Vector(-29, 41, 0)), False)
sketch10.addConstraint(Sketcher.Constraint("Coincident", 0, 2, 1, 1))
sketch10.addConstraint(Sketcher.Constraint("Coincident", 1, 2, 2, 1))
sketch10.addConstraint(Sketcher.Constraint("Coincident", 2, 2, 3, 1))
sketch10.addConstraint(Sketcher.Constraint("Coincident", 3, 2, 0, 1))
sketch10.addConstraint(Sketcher.Constraint("Coincident", 4, 2, 5, 1))
sketch10.addConstraint(Sketcher.Constraint("Coincident", 5, 2, 6, 1))
sketch10.addConstraint(Sketcher.Constraint("Coincident", 6, 2, 7, 1))
sketch10.addConstraint(Sketcher.Constraint("Coincident", 7, 2, 4, 1))
sketch10.addConstraint(Sketcher.Constraint("Vertical", 0))
sketch10.addConstraint(Sketcher.Constraint("Horizontal", 1))
sketch10.addConstraint(Sketcher.Constraint("Vertical", 2))
sketch10.addConstraint(Sketcher.Constraint("Horizontal", 3))
sketch10.addConstraint(Sketcher.Constraint("Vertical", 4))
sketch10.addConstraint(Sketcher.Constraint("Horizontal", 5))
sketch10.addConstraint(Sketcher.Constraint("Vertical", 6))
sketch10.addConstraint(Sketcher.Constraint("Horizontal", 7))
sketch10.addConstraint(Sketcher.Constraint("Vertical", 3, 2, 4, 2))
sketch10.addConstraint(Sketcher.Constraint("Vertical", 2, 2, 5, 2))
sketch10.addConstraint(Sketcher.Constraint("Equal", 2, 4))
sketch10.addConstraint(Sketcher.Constraint("DistanceX", 1, 1, 1, 2, 80.0))
sketch10.addConstraint(Sketcher.Constraint("DistanceY", 0, 2, 0, 1, 20.0))
sketch10.addConstraint(Sketcher.Constraint("DistanceY", -1, 1, 0, 2, 544.0))
sketch10.addConstraint(Sketcher.Constraint("DistanceY", -1, 1, 4, 2, 21.0))
sketch10.addConstraint(Sketcher.Constraint("DistanceX", 0, 2, -1, 1, 29.270167))
pad6 = body5.newObject("PartDesign::Pad", "Pad005")
pad6.Profile = sketch10
pad6.Length = 28
body6 = doc.addObject("PartDesign::Body", "Body005")

# Sketch on XZ plane
sketch11 = body6.newObject("Sketcher::SketchObject", "Sketch010")
sketch11.AttachmentSupport = (doc.getObject("XZ_Plane005"), [""])
sketch11.MapMode = "FlatFace"
sketch11.addGeometry(Part.LineSegment(App.Vector(-40, 20, 0), App.Vector(-40, 0, 0)), False)
sketch11.addGeometry(Part.LineSegment(App.Vector(-40, 0, 0), App.Vector(0, 0, 0)), False)
sketch11.addGeometry(Part.LineSegment(App.Vector(0, 0, 0), App.Vector(0, 20, 0)), False)
sketch11.addGeometry(Part.LineSegment(App.Vector(0, 20, 0), App.Vector(-40, 20, 0)), False)
sketch11.addConstraint(Sketcher.Constraint("Coincident", 0, 2, 1, 1))
sketch11.addConstraint(Sketcher.Constraint("Coincident", 1, 2, 2, 1))
sketch11.addConstraint(Sketcher.Constraint("Coincident", 2, 2, 3, 1))
sketch11.addConstraint(Sketcher.Constraint("Coincident", 3, 2, 0, 1))
sketch11.addConstraint(Sketcher.Constraint("Vertical", 0))
sketch11.addConstraint(Sketcher.Constraint("Horizontal", 1))
sketch11.addConstraint(Sketcher.Constraint("Vertical", 2))
sketch11.addConstraint(Sketcher.Constraint("Horizontal", 3))
sketch11.addConstraint(Sketcher.Constraint("Coincident", 1, 2, -1, 1))
sketch11.addConstraint(Sketcher.Constraint("DistanceX", 1, 1, 1, 2, 40.0))
sketch11.addConstraint(Sketcher.Constraint("DistanceY", 0, 2, 0, 1, 20.0))
pad7 = body6.newObject("PartDesign::Pad", "Pad006")
pad7.Profile = sketch11
pad7.Length = 50
body7 = doc.addObject("PartDesign::Body", "Body006")

# Sketch on XZ plane
sketch12 = body7.newObject("Sketcher::SketchObject", "Sketch011")
sketch12.AttachmentSupport = (doc.getObject("XZ_Plane006"), [""])
sketch12.MapMode = "FlatFace"
sketch12.addGeometry(Part.LineSegment(App.Vector(-40, 585, 0), App.Vector(-40, 565, 0)), False)
sketch12.addGeometry(Part.LineSegment(App.Vector(-40, 565, 0), App.Vector(0, 565, 0)), False)
sketch12.addGeometry(Part.LineSegment(App.Vector(0, 565, 0), App.Vector(0, 585, 0)), False)
sketch12.addGeometry(Part.LineSegment(App.Vector(0, 585, 0), App.Vector(-40, 585, 0)), False)
sketch12.addConstraint(Sketcher.Constraint("Coincident", 0, 2, 1, 1))
sketch12.addConstraint(Sketcher.Constraint("Coincident", 1, 2, 2, 1))
sketch12.addConstraint(Sketcher.Constraint("Coincident", 2, 2, 3, 1))
sketch12.addConstraint(Sketcher.Constraint("Coincident", 3, 2, 0, 1))
sketch12.addConstraint(Sketcher.Constraint("Vertical", 0))
sketch12.addConstraint(Sketcher.Constraint("Horizontal", 1))
sketch12.addConstraint(Sketcher.Constraint("Vertical", 2))
sketch12.addConstraint(Sketcher.Constraint("Horizontal", 3))
sketch12.addConstraint(Sketcher.Constraint("PointOnObject", 1, 2, -2))
sketch12.addConstraint(Sketcher.Constraint("DistanceX", 1, 1, 1, 2, 40.0))
sketch12.addConstraint(Sketcher.Constraint("DistanceY", 0, 2, 0, 1, 20.0))
sketch12.addConstraint(Sketcher.Constraint("DistanceY", -1, 1, 0, 2, 565.0))
pad8 = body7.newObject("PartDesign::Pad", "Pad007")
pad8.Profile = sketch12
pad8.Length = 50
body8 = doc.addObject("PartDesign::Body", "Body007")

# Sketch on XY plane
sketch13 = body8.newObject("Sketcher::SketchObject", "Sketch012")
sketch13.AttachmentSupport = (doc.getObject("XY_Plane007"), [""])
sketch13.MapMode = "FlatFace"
sketch13.addGeometry(Part.Circle(App.Vector(-15, -35, 0), App.Vector(0, 0, 1), 5), False)
sketch13.addConstraint(Sketcher.Constraint("Diameter", 0, 10.0))
sketch13.addConstraint(Sketcher.Constraint("DistanceX", 0, 3, -1, 1, 15.0))
sketch13.addConstraint(Sketcher.Constraint("DistanceY", 0, 3, -1, 1, 35.0))
pad9 = body8.newObject("PartDesign::Pad", "Pad008")
pad9.Profile = sketch13
pad9.Length = 585

doc.recompute()
